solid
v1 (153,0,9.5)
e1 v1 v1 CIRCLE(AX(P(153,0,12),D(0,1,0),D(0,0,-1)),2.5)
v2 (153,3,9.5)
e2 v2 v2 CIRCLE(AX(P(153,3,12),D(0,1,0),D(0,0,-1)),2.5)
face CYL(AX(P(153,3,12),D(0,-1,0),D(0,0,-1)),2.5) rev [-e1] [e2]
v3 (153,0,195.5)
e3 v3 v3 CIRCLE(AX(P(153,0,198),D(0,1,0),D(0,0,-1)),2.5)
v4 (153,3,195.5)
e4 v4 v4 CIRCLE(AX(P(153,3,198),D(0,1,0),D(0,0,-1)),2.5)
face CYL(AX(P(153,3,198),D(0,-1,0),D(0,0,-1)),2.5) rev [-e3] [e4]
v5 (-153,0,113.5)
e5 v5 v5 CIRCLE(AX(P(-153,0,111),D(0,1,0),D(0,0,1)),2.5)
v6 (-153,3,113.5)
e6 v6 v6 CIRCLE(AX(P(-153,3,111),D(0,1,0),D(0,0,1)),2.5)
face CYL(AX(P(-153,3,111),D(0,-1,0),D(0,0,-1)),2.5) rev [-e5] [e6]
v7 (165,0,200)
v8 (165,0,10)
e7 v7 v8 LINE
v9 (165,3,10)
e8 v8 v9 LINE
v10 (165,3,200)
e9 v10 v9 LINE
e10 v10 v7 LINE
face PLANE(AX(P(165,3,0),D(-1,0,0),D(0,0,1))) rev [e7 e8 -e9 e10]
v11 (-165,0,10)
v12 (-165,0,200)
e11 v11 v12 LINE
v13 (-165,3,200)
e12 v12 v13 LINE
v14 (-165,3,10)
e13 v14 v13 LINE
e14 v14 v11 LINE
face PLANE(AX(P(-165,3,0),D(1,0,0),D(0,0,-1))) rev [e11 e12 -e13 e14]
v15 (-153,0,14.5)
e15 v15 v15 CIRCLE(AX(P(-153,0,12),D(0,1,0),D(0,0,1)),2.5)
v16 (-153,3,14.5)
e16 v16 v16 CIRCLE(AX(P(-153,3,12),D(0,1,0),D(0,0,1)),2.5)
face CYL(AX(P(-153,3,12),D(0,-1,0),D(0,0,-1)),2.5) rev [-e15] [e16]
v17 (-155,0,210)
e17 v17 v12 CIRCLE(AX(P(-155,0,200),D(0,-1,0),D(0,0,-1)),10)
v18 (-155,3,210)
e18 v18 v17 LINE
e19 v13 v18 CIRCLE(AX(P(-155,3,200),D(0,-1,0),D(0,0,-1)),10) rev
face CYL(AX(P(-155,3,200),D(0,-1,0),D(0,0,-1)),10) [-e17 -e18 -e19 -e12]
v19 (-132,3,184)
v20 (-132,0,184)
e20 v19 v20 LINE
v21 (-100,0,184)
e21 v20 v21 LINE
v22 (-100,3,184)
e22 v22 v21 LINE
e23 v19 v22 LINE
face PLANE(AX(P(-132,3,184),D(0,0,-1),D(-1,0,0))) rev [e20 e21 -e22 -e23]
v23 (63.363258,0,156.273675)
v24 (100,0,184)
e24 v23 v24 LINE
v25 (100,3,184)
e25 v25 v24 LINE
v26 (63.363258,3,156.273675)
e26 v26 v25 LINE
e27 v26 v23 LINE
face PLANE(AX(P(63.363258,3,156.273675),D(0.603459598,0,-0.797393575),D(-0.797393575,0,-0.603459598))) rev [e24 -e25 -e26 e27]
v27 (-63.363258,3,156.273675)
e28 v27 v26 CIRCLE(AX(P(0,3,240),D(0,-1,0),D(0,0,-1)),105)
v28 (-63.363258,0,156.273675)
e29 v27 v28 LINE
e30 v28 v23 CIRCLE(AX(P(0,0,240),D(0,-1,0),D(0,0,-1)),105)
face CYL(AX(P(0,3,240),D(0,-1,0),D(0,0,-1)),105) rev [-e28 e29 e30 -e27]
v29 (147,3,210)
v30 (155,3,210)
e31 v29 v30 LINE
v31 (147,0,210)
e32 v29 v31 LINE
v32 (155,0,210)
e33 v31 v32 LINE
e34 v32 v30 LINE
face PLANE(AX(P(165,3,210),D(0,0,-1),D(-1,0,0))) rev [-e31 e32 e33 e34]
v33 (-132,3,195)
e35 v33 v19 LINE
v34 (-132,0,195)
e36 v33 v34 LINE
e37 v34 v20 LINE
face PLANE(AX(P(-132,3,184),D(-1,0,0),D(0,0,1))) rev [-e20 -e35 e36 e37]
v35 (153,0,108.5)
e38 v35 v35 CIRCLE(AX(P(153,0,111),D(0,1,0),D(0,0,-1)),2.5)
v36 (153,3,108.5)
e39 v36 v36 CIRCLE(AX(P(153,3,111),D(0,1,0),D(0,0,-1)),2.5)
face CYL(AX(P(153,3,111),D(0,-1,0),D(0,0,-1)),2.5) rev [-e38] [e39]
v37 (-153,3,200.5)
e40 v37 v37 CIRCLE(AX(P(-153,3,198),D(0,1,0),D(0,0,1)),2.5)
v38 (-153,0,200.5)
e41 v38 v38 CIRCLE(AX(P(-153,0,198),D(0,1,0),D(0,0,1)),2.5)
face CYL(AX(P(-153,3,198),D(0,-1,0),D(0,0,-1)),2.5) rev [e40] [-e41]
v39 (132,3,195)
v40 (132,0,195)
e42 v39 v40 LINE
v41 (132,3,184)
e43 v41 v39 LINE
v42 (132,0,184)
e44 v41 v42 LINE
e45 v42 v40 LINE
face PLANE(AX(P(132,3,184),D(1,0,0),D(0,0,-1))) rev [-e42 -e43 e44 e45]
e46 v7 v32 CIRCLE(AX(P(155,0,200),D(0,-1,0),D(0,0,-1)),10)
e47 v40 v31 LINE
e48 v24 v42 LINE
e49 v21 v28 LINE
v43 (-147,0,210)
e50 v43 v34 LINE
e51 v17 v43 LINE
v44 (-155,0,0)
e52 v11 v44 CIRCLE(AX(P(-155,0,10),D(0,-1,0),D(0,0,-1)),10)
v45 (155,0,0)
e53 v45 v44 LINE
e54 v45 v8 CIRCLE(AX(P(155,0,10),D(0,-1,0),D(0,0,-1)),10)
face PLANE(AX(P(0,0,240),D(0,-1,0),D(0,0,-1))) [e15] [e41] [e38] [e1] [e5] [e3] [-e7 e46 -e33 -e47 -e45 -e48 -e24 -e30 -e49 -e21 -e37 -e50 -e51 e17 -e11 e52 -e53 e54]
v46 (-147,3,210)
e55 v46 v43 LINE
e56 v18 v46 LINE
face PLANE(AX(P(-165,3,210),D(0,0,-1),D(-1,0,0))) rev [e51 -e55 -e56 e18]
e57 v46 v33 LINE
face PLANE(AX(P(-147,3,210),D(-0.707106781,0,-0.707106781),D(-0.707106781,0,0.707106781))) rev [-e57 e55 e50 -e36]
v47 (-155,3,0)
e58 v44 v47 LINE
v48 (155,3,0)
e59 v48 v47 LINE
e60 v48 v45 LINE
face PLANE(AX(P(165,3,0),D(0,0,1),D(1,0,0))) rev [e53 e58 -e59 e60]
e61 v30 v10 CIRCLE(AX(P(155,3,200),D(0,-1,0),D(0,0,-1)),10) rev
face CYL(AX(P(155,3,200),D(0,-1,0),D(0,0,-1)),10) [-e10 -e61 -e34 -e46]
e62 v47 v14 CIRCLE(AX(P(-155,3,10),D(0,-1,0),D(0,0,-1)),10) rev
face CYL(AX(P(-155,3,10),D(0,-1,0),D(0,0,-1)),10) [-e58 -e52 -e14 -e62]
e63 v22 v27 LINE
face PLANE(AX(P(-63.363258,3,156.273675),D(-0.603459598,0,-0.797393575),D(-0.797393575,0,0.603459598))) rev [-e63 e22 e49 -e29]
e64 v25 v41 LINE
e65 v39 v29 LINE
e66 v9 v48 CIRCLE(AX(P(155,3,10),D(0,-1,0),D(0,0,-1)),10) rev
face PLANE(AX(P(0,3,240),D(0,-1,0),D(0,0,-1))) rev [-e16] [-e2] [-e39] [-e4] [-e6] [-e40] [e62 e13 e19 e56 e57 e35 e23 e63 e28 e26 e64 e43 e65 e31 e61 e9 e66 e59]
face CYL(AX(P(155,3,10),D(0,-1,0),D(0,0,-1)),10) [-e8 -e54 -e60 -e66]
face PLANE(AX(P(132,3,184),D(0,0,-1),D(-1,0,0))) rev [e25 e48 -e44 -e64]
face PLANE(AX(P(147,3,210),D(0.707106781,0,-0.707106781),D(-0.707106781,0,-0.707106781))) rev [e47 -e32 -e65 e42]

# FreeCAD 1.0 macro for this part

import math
import FreeCAD as App
import Part
import Sketcher


def edges_at(feature, points):
    """Names of the edges that pass closest to the given points."""
    edges = feature.Shape.Edges
    near = lambda p: min(range(len(edges)), key=lambda i: edges[i].distToShape(Part.Vertex(*p))[0])
    return sorted({f"Edge{near(p) + 1}" for p in points})

doc = App.newDocument("Part")
params = doc.addObject("Spreadsheet::Sheet", "Params")
for row, (alias, value) in enumerate([
    ("sketch1_diameter", "5 mm"),
    ("sketch1_radius", "105 mm"),
    ("sketch1_width", "330 mm"),
    ("sketch1_width2", "18 mm"),
    ("sketch1_width3", "32 mm"),
    ("pad1_length", "3 mm"),
    ("fillet_radius", "10 mm"),
], start=1):
    params.set(f"A{row}", alias)
    params.set(f"B{row}", "=" + value)
    params.setAlias(f"B{row}", alias)

body = doc.addObject("PartDesign::Body", "Body")

# Sketch on XZ plane
sketch1 = doc.addObject("Sketcher::SketchObject", "Sketch")
body.addObject(sketch1)
sketch1.AttachmentSupport = (doc.XZ_Plane, [""])
sketch1.MapMode = "FlatFace"
sketch1.addGeometry([
    Part.LineSegment(App.Vector(165, 0, 0), App.Vector(-165, 0, 0)),  # 0
    Part.LineSegment(App.Vector(-165, 0, 0), App.Vector(-165, 210, 0)),  # 1
    Part.LineSegment(App.Vector(-165, 210, 0), App.Vector(-147, 210, 0)),  # 2
    Part.LineSegment(App.Vector(-147, 210, 0), App.Vector(-132, 195, 0)),  # 3
    Part.LineSegment(App.Vector(-132, 195, 0), App.Vector(-132, 184, 0)),  # 4
    Part.LineSegment(App.Vector(-132, 184, 0), App.Vector(-100, 184, 0)),  # 5
    Part.LineSegment(App.Vector(-100, 184, 0), App.Vector(-63.4, 156.3, 0)),  # 6
    Part.ArcOfCircle(Part.Circle(App.Vector(0, 240, 0), App.Vector(0, 0, 1), 105), math.radians(-127), math.radians(-53)),  # 7
    Part.LineSegment(App.Vector(63.4, 156.3, 0), App.Vector(100, 184, 0)),  # 8
    Part.LineSegment(App.Vector(100, 184, 0), App.Vector(132, 184, 0)),  # 9
    Part.LineSegment(App.Vector(132, 184, 0), App.Vector(132, 195, 0)),  # 10
    Part.LineSegment(App.Vector(132, 195, 0), App.Vector(147, 210, 0)),  # 11
    Part.LineSegment(App.Vector(147, 210, 0), App.Vector(165, 210, 0)),  # 12
    Part.LineSegment(App.Vector(165, 210, 0), App.Vector(165, 0, 0)),  # 13
    Part.Circle(App.Vector(-153, 198, 0), App.Vector(0, 0, 1), 2.5),  # 14
    Part.Circle(App.Vector(-153, 111, 0), App.Vector(0, 0, 1), 2.5),  # 15
    Part.Circle(App.Vector(153, 198, 0), App.Vector(0, 0, 1), 2.5),  # 16
    Part.Circle(App.Vector(153, 111, 0), App.Vector(0, 0, 1), 2.5),  # 17
    Part.Circle(App.Vector(-153, 12, 0), App.Vector(0, 0, 1), 2.5),  # 18
    Part.Circle(App.Vector(153, 12, 0), App.Vector(0, 0, 1), 2.5),  # 19
], False)
sketch1.addConstraint([
    Sketcher.Constraint("Coincident", 0, 2, 1, 1),
    Sketcher.Constraint("Coincident", 1, 2, 2, 1),
    Sketcher.Constraint("Coincident", 2, 2, 3, 1),
    Sketcher.Constraint("Coincident", 3, 2, 4, 1),
    Sketcher.Constraint("Coincident", 4, 2, 5, 1),
    Sketcher.Constraint("Coincident", 5, 2, 6, 1),
    Sketcher.Constraint("Tangent", 6, 2, 7, 1),
    Sketcher.Constraint("Tangent", 7, 2, 8, 1),
    Sketcher.Constraint("Coincident", 8, 2, 9, 1),
    Sketcher.Constraint("Coincident", 9, 2, 10, 1),
    Sketcher.Constraint("Coincident", 10, 2, 11, 1),
    Sketcher.Constraint("Coincident", 11, 2, 12, 1),
    Sketcher.Constraint("Coincident", 12, 2, 13, 1),
    Sketcher.Constraint("Coincident", 13, 2, 0, 1),
    Sketcher.Constraint("Horizontal", 0),
    Sketcher.Constraint("Vertical", 1),
    Sketcher.Constraint("Horizontal", 2),
    Sketcher.Constraint("Vertical", 4),
    Sketcher.Constraint("Horizontal", 5),
    Sketcher.Constraint("Horizontal", 9),
    Sketcher.Constraint("Vertical", 10),
    Sketcher.Constraint("Horizontal", 12),
    Sketcher.Constraint("Vertical", 13),
    Sketcher.Constraint("Equal", 14, 15),
    Sketcher.Constraint("Equal", 15, 16),
    Sketcher.Constraint("Equal", 16, 17),
    Sketcher.Constraint("Equal", 17, 18),
    Sketcher.Constraint("Equal", 18, 19),
    Sketcher.Constraint("Symmetric", 0, 2, 13, 2, -1, 1),
    Sketcher.Constraint("Symmetric", 14, 3, 16, 3, -2),
    Sketcher.Constraint("Symmetric", 15, 3, 17, 3, -2),
    Sketcher.Constraint("Symmetric", 18, 3, 19, 3, -2),
    Sketcher.Constraint("Symmetric", 6, 2, 7, 2, -2),
    Sketcher.Constraint("Symmetric", 4, 2, 9, 2, -2),
    Sketcher.Constraint("Symmetric", 2, 2, 11, 2, -2),
    Sketcher.Constraint("Perpendicular", 3, 11),
    Sketcher.Constraint("Horizontal", 3, 2, 10, 2),
    Sketcher.Constraint("Vertical", 14, 3, 15, 3),
    Sketcher.Constraint("Vertical", 15, 3, 18, 3),
    Sketcher.Constraint("Diameter", 14, 5.0),
    Sketcher.Constraint("Radius", 7, 105.0),
    Sketcher.Constraint("DistanceX", 0, 2, 0, 1, 330.0),
    Sketcher.Constraint("DistanceX", 2, 1, 2, 2, 18.0),
    Sketcher.Constraint("DistanceX", 5, 1, 5, 2, 32.0),
    Sketcher.Constraint("DistanceY", 1, 1, 1, 2, 210.0),
    Sketcher.Constraint("DistanceY", 4, 2, 4, 1, 11.0),
    Sketcher.Constraint("DistanceY", -1, 1, 7, 3, 240.0),
    Sketcher.Constraint("DistanceX", 14, 3, -1, 1, 153.0),
    Sketcher.Constraint("DistanceY", -1, 1, 14, 3, 198.0),
    Sketcher.Constraint("DistanceY", -1, 1, 15, 3, 111.0),
    Sketcher.Constraint("DistanceY", -1, 1, 18, 3, 12.0),
    Sketcher.Constraint("DistanceX", 3, 2, -1, 1, 132.0),
])
sketch1.setExpression("Constraints[39]", "Params.sketch1_diameter")
sketch1.setExpression("Constraints[40]", "Params.sketch1_radius")
sketch1.setExpression("Constraints[41]", "Params.sketch1_width")
sketch1.setExpression("Constraints[42]", "Params.sketch1_width2")
sketch1.setExpression("Constraints[43]", "Params.sketch1_width3")
pad1 = doc.addObject("PartDesign::Pad", "Pad")
body.addObject(pad1)
pad1.Profile = sketch1
pad1.setExpression("Length", "Params.pad1_length")
pad1.Reversed = True
doc.recompute()

fillet = doc.addObject("PartDesign::Fillet", "Fillet")
body.addObject(fillet)
fillet.Base = (pad1, edges_at(pad1, [
    (-165, 1.5, 0),
    (165, 1.5, 0),
    (165, 1.5, 210),
    (-165, 1.5, 210),
]))
fillet.setExpression("Radius", "Params.fillet_radius")

doc.recompute()
